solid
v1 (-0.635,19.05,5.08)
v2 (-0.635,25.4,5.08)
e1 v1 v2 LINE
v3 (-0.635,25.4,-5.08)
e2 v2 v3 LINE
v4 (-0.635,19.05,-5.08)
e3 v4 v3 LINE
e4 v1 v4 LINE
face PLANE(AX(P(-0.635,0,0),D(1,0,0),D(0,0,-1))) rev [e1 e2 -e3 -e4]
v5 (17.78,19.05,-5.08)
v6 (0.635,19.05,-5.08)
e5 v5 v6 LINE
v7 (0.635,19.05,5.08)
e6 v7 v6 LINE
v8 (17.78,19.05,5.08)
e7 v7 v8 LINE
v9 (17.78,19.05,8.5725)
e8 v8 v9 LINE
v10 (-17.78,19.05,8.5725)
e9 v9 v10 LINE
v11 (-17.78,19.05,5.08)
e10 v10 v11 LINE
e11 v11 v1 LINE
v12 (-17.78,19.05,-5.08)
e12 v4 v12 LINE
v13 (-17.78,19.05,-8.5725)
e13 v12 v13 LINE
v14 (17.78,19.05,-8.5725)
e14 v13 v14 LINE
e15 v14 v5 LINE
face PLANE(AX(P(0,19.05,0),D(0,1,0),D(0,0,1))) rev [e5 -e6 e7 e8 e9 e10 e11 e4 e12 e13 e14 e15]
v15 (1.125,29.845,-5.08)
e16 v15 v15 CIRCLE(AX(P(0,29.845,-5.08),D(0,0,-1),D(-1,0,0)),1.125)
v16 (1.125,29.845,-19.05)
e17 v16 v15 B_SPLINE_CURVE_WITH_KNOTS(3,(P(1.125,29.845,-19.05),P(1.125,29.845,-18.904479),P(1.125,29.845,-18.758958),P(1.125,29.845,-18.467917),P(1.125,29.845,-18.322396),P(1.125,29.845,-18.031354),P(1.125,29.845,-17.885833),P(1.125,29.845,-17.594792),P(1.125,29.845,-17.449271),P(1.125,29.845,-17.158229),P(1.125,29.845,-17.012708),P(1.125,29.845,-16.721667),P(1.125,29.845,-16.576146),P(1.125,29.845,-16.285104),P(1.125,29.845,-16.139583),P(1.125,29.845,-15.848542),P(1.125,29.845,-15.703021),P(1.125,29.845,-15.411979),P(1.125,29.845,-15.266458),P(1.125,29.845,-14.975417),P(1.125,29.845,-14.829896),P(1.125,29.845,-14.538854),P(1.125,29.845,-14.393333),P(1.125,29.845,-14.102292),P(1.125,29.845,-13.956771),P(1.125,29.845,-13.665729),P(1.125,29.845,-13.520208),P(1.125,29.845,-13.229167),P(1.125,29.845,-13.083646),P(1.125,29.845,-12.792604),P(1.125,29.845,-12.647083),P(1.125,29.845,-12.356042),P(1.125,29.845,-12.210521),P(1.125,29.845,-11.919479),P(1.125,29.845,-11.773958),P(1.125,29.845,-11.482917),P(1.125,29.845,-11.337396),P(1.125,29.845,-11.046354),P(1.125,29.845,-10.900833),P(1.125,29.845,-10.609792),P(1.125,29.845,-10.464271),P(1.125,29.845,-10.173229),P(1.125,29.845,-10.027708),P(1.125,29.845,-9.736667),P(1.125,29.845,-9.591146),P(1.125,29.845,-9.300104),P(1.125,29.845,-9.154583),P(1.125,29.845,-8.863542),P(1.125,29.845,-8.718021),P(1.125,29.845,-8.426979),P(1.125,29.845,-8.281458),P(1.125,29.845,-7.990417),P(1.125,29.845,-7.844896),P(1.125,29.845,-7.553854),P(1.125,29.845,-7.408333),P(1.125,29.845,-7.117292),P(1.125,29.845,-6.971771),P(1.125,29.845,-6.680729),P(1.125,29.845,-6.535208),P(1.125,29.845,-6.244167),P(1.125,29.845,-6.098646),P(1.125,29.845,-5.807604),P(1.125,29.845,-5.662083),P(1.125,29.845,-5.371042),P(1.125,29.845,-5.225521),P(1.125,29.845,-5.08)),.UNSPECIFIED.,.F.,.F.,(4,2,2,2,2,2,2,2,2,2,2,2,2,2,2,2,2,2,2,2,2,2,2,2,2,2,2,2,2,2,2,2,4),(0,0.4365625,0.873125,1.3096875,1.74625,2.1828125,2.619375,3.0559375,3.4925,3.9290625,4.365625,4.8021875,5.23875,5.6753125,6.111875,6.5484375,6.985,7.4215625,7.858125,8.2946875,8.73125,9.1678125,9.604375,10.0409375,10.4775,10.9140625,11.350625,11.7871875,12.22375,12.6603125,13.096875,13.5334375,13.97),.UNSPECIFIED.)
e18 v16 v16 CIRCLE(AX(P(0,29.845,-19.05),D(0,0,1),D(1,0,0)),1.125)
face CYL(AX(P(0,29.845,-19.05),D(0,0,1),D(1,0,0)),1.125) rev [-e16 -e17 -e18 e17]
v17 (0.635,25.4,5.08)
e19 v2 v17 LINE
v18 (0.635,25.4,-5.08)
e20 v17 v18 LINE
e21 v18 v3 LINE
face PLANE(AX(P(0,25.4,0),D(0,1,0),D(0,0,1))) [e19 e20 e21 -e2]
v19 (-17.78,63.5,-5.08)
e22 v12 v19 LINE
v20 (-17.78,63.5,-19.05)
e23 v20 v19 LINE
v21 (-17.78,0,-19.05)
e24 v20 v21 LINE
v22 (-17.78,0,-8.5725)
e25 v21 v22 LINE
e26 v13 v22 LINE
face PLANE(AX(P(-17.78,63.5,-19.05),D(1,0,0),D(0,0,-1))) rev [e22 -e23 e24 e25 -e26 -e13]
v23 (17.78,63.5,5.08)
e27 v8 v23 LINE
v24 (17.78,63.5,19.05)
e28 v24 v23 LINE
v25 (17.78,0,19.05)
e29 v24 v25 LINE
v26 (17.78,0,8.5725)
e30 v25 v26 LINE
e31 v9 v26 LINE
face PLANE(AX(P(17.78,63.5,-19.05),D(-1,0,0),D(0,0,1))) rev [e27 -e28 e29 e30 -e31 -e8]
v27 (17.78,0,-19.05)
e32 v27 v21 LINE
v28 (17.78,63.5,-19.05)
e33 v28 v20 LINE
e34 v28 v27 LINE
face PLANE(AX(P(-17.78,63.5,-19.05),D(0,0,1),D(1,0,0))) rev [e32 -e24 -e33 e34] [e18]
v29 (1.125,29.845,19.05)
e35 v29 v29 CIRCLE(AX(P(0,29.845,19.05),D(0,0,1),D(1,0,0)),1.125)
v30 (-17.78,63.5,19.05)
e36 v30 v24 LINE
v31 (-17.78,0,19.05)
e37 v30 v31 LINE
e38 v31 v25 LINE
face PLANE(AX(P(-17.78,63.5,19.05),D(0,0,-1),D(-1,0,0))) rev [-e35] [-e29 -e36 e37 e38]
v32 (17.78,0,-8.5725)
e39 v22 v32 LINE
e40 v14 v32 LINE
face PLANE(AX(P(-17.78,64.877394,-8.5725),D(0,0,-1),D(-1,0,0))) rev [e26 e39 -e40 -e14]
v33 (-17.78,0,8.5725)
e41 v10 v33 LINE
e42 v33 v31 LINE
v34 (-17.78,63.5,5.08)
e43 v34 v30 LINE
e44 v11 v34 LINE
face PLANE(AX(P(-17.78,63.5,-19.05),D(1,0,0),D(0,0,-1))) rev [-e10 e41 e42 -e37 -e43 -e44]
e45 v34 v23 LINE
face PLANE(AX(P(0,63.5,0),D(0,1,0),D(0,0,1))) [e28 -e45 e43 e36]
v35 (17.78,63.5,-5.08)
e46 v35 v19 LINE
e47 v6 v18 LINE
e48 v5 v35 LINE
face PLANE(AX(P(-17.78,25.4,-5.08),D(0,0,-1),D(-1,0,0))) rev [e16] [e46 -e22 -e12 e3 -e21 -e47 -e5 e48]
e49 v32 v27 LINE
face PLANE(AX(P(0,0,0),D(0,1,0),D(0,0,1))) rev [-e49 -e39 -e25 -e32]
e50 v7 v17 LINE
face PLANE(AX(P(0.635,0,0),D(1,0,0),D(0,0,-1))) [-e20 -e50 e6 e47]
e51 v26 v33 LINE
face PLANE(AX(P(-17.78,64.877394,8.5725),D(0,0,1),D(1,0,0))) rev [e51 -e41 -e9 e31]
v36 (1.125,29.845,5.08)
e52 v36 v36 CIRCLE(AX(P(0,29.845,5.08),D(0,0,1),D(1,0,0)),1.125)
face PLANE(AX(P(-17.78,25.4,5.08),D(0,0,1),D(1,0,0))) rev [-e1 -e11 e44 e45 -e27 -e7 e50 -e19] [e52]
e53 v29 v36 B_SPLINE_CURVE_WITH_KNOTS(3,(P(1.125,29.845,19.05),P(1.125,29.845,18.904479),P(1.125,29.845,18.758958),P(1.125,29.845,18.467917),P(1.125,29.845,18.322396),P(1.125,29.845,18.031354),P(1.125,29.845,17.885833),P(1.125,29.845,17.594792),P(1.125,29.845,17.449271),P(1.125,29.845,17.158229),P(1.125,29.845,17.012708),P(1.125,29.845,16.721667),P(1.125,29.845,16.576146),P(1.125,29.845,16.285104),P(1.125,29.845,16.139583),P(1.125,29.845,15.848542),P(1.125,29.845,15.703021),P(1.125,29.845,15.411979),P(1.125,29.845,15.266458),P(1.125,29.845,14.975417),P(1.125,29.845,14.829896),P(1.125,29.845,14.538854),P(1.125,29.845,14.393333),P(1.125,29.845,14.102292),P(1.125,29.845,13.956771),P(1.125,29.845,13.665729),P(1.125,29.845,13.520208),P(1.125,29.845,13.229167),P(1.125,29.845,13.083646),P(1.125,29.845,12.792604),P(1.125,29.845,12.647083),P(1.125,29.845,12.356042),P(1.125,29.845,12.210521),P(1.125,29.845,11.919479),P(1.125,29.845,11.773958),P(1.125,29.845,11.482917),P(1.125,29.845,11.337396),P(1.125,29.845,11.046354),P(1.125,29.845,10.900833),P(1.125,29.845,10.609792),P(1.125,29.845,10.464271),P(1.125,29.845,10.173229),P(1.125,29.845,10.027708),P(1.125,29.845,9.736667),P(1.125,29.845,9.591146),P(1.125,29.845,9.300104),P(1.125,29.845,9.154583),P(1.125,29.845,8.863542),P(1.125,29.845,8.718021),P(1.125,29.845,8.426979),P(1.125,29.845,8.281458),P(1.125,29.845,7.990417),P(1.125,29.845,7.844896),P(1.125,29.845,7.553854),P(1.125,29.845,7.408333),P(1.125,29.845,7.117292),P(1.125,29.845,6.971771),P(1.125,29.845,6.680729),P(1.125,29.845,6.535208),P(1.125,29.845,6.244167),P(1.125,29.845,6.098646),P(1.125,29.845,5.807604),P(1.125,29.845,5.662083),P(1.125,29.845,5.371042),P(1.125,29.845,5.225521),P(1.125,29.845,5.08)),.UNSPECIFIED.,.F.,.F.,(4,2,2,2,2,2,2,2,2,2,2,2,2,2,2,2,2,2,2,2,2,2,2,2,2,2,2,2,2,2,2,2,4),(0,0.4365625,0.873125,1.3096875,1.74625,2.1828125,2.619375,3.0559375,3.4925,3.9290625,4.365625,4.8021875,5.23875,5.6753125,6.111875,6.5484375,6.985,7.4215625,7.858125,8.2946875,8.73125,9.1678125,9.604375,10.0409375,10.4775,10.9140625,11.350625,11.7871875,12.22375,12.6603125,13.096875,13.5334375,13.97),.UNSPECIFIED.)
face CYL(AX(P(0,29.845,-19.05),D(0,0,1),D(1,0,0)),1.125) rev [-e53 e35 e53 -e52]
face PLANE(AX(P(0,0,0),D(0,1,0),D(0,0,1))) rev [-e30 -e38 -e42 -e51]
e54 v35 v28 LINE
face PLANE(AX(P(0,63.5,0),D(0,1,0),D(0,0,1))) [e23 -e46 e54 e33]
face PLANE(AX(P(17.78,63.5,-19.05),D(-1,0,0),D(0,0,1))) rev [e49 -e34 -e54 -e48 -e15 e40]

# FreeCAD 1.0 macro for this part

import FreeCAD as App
import Part
import Sketcher

V = App.Vector
Q = App.Units.Quantity

doc = App.newDocument("Part")
body = doc.addObject("PartDesign::Body", "Body")

sketch1 = doc.addObject("Sketcher::SketchObject", "Sketch")
body.addObject(sketch1)
sketch1.AttachmentSupport = (doc.XZ_Plane, [""])
sketch1.MapMode = "FlatFace"
sketch1.addGeometry(Part.LineSegment(V(-17.78, -19.05, 0), V(-17.78, 19.05, 0)), False)
sketch1.addGeometry(Part.LineSegment(V(-17.78, 19.05, 0), V(17.78, 19.05, 0)), False)
sketch1.addGeometry(Part.LineSegment(V(17.78, 19.05, 0), V(17.78, -19.05, 0)), False)
sketch1.addGeometry(Part.LineSegment(V(17.78, -19.05, 0), V(-17.78, -19.05, 0)), False)
sketch1.addConstraint(Sketcher.Constraint("Coincident", 0, 2, 1, 1))
sketch1.addConstraint(Sketcher.Constraint("Coincident", 1, 2, 2, 1))
sketch1.addConstraint(Sketcher.Constraint("Coincident", 2, 2, 3, 1))
sketch1.addConstraint(Sketcher.Constraint("Coincident", 3, 2, 0, 1))
sketch1.addConstraint(Sketcher.Constraint("Vertical", 0))
sketch1.addConstraint(Sketcher.Constraint("Horizontal", 1))
sketch1.addConstraint(Sketcher.Constraint("Vertical", 2))
sketch1.addConstraint(Sketcher.Constraint("Horizontal", 3))
sketch1.addConstraint(Sketcher.Constraint("Symmetric", 0, 2, 2, 2, -1, 1))
sketch1.addConstraint(Sketcher.Constraint("DistanceX", 1, 1, 1, 2, Q("1.4 in")))
sketch1.addConstraint(Sketcher.Constraint("DistanceY", 0, 1, 0, 2, Q("1.5 in")))
pad1 = doc.addObject("PartDesign::Pad", "Pad")
body.addObject(pad1)
pad1.Profile = sketch1
pad1.Length = Q("2.5 in")
pad1.Reversed = True

sketch2 = doc.addObject("Sketcher::SketchObject", "Sketch001")
body.addObject(sketch2)
sketch2.AttachmentSupport = (doc.XZ_Plane, [""])
sketch2.MapMode = "FlatFace"
sketch2.AttachmentOffset = App.Placement(V(0, 0, -2.5 * 25.4), App.Rotation())
sketch2.addGeometry(Part.LineSegment(V(-17.78, -5.08, 0), V(-17.78, 5.08, 0)), False)
sketch2.addGeometry(Part.LineSegment(V(-17.78, 5.08, 0), V(17.78, 5.08, 0)), False)
sketch2.addGeometry(Part.LineSegment(V(17.78, 5.08, 0), V(17.78, -5.08, 0)), False)
sketch2.addGeometry(Part.LineSegment(V(17.78, -5.08, 0), V(-17.78, -5.08, 0)), False)
sketch2.addConstraint(Sketcher.Constraint("Coincident", 0, 2, 1, 1))
sketch2.addConstraint(Sketcher.Constraint("Coincident", 1, 2, 2, 1))
sketch2.addConstraint(Sketcher.Constraint("Coincident", 2, 2, 3, 1))
sketch2.addConstraint(Sketcher.Constraint("Coincident", 3, 2, 0, 1))
sketch2.addConstraint(Sketcher.Constraint("Vertical", 0))
sketch2.addConstraint(Sketcher.Constraint("Horizontal", 1))
sketch2.addConstraint(Sketcher.Constraint("Vertical", 2))
sketch2.addConstraint(Sketcher.Constraint("Horizontal", 3))
sketch2.addConstraint(Sketcher.Constraint("Symmetric", 0, 2, 2, 2, -1, 1))
sketch2.addConstraint(Sketcher.Constraint("DistanceX", 1, 1, 1, 2, Q("1.4 in")))
sketch2.addConstraint(Sketcher.Constraint("DistanceY", 0, 1, 0, 2, Q("0.4 in")))
pocket1 = doc.addObject("PartDesign::Pocket", "Pocket")
body.addObject(pocket1)
pocket1.Profile = sketch2
pocket1.Length = Q("1.5 in")
pocket1.Reversed = True

sketch3 = doc.addObject("Sketcher::SketchObject", "Sketch002")
body.addObject(sketch3)
sketch3.AttachmentSupport = (doc.XZ_Plane, [""])
sketch3.MapMode = "FlatFace"
sketch3.addGeometry(Part.LineSegment(V(-17.78, 8.5725, 0), V(-17.78, -8.5725, 0)), False)
sketch3.addGeometry(Part.LineSegment(V(-17.78, -8.5725, 0), V(17.78, -8.5725, 0)), False)
sketch3.addGeometry(Part.LineSegment(V(17.78, -8.5725, 0), V(17.78, 8.5725, 0)), False)
sketch3.addGeometry(Part.LineSegment(V(17.78, 8.5725, 0), V(-17.78, 8.5725, 0)), False)
sketch3.addConstraint(Sketcher.Constraint("Coincident", 0, 2, 1, 1))
sketch3.addConstraint(Sketcher.Constraint("Coincident", 1, 2, 2, 1))
sketch3.addConstraint(Sketcher.Constraint("Coincident", 2, 2, 3, 1))
sketch3.addConstraint(Sketcher.Constraint("Coincident", 3, 2, 0, 1))
sketch3.addConstraint(Sketcher.Constraint("Vertical", 0))
sketch3.addConstraint(Sketcher.Constraint("Horizontal", 1))
sketch3.addConstraint(Sketcher.Constraint("Vertical", 2))
sketch3.addConstraint(Sketcher.Constraint("Horizontal", 3))
sketch3.addConstraint(Sketcher.Constraint("Symmetric", 0, 2, 2, 2, -1, 1))
sketch3.addConstraint(Sketcher.Constraint("DistanceX", 1, 1, 1, 2, Q("1.4 in")))
sketch3.addConstraint(Sketcher.Constraint("DistanceY", 0, 2, 0, 1, Q("0.675 in")))
pocket2 = doc.addObject("PartDesign::Pocket", "Pocket001")
body.addObject(pocket2)
pocket2.Profile = sketch3
pocket2.Length = Q("0.75 in")

sketch4 = doc.addObject("Sketcher::SketchObject", "Sketch003")
body.addObject(sketch4)
sketch4.AttachmentSupport = (doc.XZ_Plane, [""])
sketch4.MapMode = "FlatFace"
sketch4.AttachmentOffset = App.Placement(V(0, 0, -1 * 25.4), App.Rotation())
sketch4.addGeometry(Part.LineSegment(V(-17.78, -5.08, 0), V(-17.78, 5.08, 0)), False)
sketch4.addGeometry(Part.LineSegment(V(-17.78, 5.08, 0), V(-0.635, 5.08, 0)), False)
sketch4.addGeometry(Part.LineSegment(V(-0.635, 5.08, 0), V(-0.635, -5.08, 0)), False)
sketch4.addGeometry(Part.LineSegment(V(-0.635, -5.08, 0), V(-17.78, -5.08, 0)), False)
sketch4.addGeometry(Part.LineSegment(V(0.635, -5.08, 0), V(0.635, 5.08, 0)), False)
sketch4.addGeometry(Part.LineSegment(V(0.635, 5.08, 0), V(17.78, 5.08, 0)), False)
sketch4.addGeometry(Part.LineSegment(V(17.78, 5.08, 0), V(17.78, -5.08, 0)), False)
sketch4.addGeometry(Part.LineSegment(V(17.78, -5.08, 0), V(0.635, -5.08, 0)), False)
sketch4.addConstraint(Sketcher.Constraint("Coincident", 0, 2, 1, 1))
sketch4.addConstraint(Sketcher.Constraint("Coincident", 1, 2, 2, 1))
sketch4.addConstraint(Sketcher.Constraint("Coincident", 2, 2, 3, 1))
sketch4.addConstraint(Sketcher.Constraint("Coincident", 3, 2, 0, 1))
sketch4.addConstraint(Sketcher.Constraint("Coincident", 4, 2, 5, 1))
sketch4.addConstraint(Sketcher.Constraint("Coincident", 5, 2, 6, 1))
sketch4.addConstraint(Sketcher.Constraint("Coincident", 6, 2, 7, 1))
sketch4.addConstraint(Sketcher.Constraint("Coincident", 7, 2, 4, 1))
sketch4.addConstraint(Sketcher.Constraint("Vertical", 0))
sketch4.addConstraint(Sketcher.Constraint("Horizontal", 1))
sketch4.addConstraint(Sketcher.Constraint("Vertical", 2))
sketch4.addConstraint(Sketcher.Constraint("Horizontal", 3))
sketch4.addConstraint(Sketcher.Constraint("Vertical", 4))
sketch4.addConstraint(Sketcher.Constraint("Horizontal", 5))
sketch4.addConstraint(Sketcher.Constraint("Vertical", 6))
sketch4.addConstraint(Sketcher.Constraint("Horizontal", 7))
sketch4.addConstraint(Sketcher.Constraint("Symmetric", 2, 2, 4, 2, -1, 1))
sketch4.addConstraint(Sketcher.Constraint("Symmetric", 0, 2, 6, 2, -1, 1))
sketch4.addConstraint(Sketcher.Constraint("Horizontal", 1, 2, 4, 2))
sketch4.addConstraint(Sketcher.Constraint("DistanceY", 0, 1, 0, 2, Q("0.4 in")))
sketch4.addConstraint(Sketcher.Constraint("DistanceX", 0, 2, -1, 1, Q("0.7 in")))
sketch4.addConstraint(Sketcher.Constraint("DistanceX", 1, 1, 1, 2, Q("0.675 in")))
pocket3 = doc.addObject("PartDesign::Pocket", "Pocket002")
body.addObject(pocket3)
pocket3.Profile = sketch4
pocket3.Type = "ThroughAll"
pocket3.Reversed = True

sketch5 = doc.addObject("Sketcher::SketchObject", "Sketch004")
body.addObject(sketch5)
sketch5.AttachmentSupport = (doc.XY_Plane, [""])
sketch5.MapMode = "FlatFace"
sketch5.AttachmentOffset = App.Placement(V(0, 0, -0.2 * 25.4), App.Rotation())
sketch5.addGeometry(Part.Circle(V(0, 29.845, 0), V(0, 0, 1), 1.125), False)
sketch5.addConstraint(Sketcher.Constraint("PointOnObject", 0, 3, -2))
sketch5.addConstraint(Sketcher.Constraint("Diameter", 0, 2.25))
sketch5.addConstraint(Sketcher.Constraint("DistanceY", -1, 1, 0, 3, Q("1.175 in")))
pocket4 = doc.addObject("PartDesign::Pocket", "Pocket003")
body.addObject(pocket4)
pocket4.Profile = sketch5
pocket4.Type = "ThroughAll"
pocket4.Midplane = True

doc.recompute()
